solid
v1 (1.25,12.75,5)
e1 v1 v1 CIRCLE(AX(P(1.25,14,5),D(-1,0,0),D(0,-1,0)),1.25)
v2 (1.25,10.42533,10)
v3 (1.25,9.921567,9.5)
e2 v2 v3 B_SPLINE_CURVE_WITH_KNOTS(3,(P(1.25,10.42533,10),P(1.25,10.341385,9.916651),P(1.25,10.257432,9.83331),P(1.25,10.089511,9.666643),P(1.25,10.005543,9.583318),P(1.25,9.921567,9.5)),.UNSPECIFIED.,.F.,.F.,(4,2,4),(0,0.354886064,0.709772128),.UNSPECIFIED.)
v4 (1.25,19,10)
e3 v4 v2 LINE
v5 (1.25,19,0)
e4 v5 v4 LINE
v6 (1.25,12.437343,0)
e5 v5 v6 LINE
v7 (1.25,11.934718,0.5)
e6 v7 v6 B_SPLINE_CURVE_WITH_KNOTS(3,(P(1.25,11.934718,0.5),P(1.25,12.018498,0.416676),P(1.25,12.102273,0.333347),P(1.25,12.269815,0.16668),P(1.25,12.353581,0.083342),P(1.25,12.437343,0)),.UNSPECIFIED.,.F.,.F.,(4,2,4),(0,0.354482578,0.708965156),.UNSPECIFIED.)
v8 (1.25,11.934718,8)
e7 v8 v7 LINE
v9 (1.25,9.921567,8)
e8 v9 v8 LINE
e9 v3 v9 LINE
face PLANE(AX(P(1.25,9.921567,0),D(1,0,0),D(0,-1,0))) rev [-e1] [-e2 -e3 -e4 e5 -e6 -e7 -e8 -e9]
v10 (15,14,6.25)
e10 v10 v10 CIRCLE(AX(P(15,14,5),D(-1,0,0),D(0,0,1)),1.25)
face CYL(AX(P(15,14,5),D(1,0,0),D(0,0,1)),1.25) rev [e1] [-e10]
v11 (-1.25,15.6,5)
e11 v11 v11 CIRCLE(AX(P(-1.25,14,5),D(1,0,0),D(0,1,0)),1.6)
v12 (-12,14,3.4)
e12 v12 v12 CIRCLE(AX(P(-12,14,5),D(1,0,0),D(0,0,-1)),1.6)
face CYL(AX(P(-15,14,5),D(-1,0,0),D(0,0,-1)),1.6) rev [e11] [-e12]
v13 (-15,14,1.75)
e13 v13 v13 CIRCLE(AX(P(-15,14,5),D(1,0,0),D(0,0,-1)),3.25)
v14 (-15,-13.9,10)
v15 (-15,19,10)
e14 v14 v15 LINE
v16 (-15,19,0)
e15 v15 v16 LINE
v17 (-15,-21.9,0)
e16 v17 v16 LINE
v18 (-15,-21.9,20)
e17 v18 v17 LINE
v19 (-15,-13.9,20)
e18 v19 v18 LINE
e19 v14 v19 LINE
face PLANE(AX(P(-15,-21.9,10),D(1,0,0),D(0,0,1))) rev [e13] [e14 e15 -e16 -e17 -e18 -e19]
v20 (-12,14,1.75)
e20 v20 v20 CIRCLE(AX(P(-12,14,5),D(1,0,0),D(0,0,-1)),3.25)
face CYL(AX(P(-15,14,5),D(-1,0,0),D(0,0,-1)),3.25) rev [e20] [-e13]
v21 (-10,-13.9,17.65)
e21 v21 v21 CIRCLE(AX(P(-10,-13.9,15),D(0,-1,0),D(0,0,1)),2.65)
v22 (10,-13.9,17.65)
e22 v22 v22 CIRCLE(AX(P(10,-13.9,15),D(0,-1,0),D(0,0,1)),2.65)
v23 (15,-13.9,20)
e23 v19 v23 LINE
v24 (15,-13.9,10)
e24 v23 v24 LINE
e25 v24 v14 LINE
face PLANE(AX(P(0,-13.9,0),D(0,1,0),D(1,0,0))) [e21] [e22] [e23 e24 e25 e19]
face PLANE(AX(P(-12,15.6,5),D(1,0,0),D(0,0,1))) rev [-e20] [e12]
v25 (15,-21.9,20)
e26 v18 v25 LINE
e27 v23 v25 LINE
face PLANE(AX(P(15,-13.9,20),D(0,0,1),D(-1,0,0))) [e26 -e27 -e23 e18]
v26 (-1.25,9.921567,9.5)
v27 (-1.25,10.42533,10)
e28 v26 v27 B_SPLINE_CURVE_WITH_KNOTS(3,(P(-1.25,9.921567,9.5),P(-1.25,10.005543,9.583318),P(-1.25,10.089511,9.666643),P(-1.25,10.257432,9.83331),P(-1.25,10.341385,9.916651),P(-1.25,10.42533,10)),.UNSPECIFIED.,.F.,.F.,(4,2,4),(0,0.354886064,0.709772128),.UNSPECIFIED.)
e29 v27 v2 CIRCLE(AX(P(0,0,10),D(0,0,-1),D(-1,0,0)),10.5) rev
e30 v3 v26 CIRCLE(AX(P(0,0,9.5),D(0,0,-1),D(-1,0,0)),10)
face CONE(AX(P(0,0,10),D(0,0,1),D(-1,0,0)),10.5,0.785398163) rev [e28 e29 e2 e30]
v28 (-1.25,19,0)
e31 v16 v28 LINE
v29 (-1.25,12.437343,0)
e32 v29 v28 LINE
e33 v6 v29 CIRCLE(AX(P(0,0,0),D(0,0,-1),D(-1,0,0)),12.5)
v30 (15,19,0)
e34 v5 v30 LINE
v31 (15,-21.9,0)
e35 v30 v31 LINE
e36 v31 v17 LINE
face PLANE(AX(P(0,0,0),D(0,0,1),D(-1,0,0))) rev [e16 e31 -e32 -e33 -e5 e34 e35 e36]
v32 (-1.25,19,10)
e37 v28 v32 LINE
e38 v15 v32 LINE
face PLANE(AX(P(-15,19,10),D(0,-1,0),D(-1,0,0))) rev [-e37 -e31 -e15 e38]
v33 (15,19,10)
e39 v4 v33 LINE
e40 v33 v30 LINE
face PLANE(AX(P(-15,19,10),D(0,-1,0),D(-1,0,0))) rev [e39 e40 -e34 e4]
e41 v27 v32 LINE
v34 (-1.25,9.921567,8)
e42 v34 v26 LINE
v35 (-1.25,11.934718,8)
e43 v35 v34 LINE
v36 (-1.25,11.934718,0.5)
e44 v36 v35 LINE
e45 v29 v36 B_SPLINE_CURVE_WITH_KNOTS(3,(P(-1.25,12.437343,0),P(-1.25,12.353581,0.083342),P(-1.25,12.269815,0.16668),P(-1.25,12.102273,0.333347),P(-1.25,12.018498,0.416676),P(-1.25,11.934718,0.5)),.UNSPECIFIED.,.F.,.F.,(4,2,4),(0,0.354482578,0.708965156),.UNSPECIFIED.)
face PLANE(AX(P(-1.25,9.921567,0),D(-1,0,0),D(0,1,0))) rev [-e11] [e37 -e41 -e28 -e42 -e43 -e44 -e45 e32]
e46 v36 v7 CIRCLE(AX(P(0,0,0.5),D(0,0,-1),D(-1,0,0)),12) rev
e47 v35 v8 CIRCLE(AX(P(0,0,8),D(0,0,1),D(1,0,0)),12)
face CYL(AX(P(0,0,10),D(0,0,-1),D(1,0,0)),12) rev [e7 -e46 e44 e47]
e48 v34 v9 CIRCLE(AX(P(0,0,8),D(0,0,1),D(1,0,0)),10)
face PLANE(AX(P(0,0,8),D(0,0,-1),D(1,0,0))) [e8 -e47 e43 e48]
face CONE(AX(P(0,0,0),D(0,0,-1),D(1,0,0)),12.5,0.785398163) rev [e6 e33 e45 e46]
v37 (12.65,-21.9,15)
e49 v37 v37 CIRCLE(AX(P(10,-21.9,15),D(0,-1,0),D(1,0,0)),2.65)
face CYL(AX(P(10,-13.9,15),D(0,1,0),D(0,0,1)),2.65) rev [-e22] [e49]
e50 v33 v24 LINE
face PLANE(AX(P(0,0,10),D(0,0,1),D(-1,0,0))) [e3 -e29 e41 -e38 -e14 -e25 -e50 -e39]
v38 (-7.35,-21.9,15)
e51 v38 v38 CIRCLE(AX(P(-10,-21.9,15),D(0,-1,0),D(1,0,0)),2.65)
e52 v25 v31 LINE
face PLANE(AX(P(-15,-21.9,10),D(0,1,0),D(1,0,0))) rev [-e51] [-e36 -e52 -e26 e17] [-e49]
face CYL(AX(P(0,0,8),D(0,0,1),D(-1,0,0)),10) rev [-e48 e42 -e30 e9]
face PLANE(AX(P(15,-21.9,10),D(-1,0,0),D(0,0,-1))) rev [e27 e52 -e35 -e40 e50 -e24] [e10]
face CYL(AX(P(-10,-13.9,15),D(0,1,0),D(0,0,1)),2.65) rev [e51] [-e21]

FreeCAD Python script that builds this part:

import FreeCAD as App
import Part
import Sketcher


def edges_at(feature, points):
    """Names of the edges that pass closest to the given points."""
    edges = feature.Shape.Edges
    near = lambda p: min(range(len(edges)), key=lambda i: edges[i].distToShape(Part.Vertex(*p))[0])
    return sorted({f"Edge{near(p) + 1}" for p in points})


def add_polygon(sketch, points):
    """Adds a closed chain of lines whose ends are joined by coincident constraints."""
    first, n = sketch.GeometryCount, len(points)
    for a, b in zip(points, points[1:] + points[:1]):
        sketch.addGeometry(Part.LineSegment(App.Vector(*a, 0), App.Vector(*b, 0)), False)
    for i in range(n):
        sketch.addConstraint(Sketcher.Constraint("Coincident", first + i, 2, first + (i + 1) % n, 1))

doc = App.newDocument("Part")
body = doc.addObject("PartDesign::Body", "Body")

# Sketch on XY plane
sketch1 = doc.addObject("Sketcher::SketchObject", "Sketch")
body.addObject(sketch1)
sketch1.AttachmentSupport = (doc.XY_Plane, [""])
sketch1.MapMode = "FlatFace"
add_polygon(sketch1, [(-15, 19), (-15, -21.9), (15, -21.9), (15, 19)])  # lines 0-3
sketch1.addGeometry(Part.Circle(App.Vector(0, 0, 0), App.Vector(0, 0, 1), 12), False)  # 4
sketch1.addConstraint([
    Sketcher.Constraint("Vertical", 0),
    Sketcher.Constraint("Horizontal", 1),
    Sketcher.Constraint("Vertical", 2),
    Sketcher.Constraint("Horizontal", 3),
    Sketcher.Constraint("Coincident", 4, 3, -1, 1),
    Sketcher.Constraint("Diameter", 4, 24.0),
    Sketcher.Constraint("DistanceX", 1, 1, 1, 2, 30.0),
    Sketcher.Constraint("DistanceY", 0, 2, 0, 1, 40.9),
    Sketcher.Constraint("DistanceX", 0, 2, -1, 1, 15.0),
    Sketcher.Constraint("DistanceY", -1, 1, 2, 2, 19.0),
])
pad1 = doc.addObject("PartDesign::Pad", "Pad")
body.addObject(pad1)
pad1.Profile = sketch1
pad1.Length = 10

# Sketch on XY plane
sketch2 = doc.addObject("Sketcher::SketchObject", "Sketch001")
body.addObject(sketch2)
sketch2.AttachmentSupport = (doc.XY_Plane, [""])
sketch2.MapMode = "FlatFace"
sketch2.AttachmentOffset = App.Placement(App.Vector(0, 0, 8), App.Rotation())
sketch2.addGeometry([
    Part.Circle(App.Vector(0, 0, 0), App.Vector(0, 0, 1), 12),
    Part.Circle(App.Vector(0, 0, 0), App.Vector(0, 0, 1), 10),
], False)
sketch2.addConstraint([
    Sketcher.Constraint("Coincident", 0, 3, -1, 1),
    Sketcher.Constraint("Coincident", 1, 3, -1, 1),
    Sketcher.Constraint("Diameter", 0, 24.0),
    Sketcher.Constraint("Diameter", 1, 20.0),
])
pad2 = doc.addObject("PartDesign::Pad", "Pad001")
body.addObject(pad2)
pad2.Profile = sketch2
pad2.Length = 2

# Sketch on XY plane
sketch3 = doc.addObject("Sketcher::SketchObject", "Sketch002")
body.addObject(sketch3)
sketch3.AttachmentSupport = (doc.XY_Plane, [""])
sketch3.MapMode = "FlatFace"
sketch3.AttachmentOffset = App.Placement(App.Vector(0, 0, 10), App.Rotation())
add_polygon(sketch3, [(-1.25, 19), (-1.25, 9.921567), (1.25, 9.921567), (1.25, 19)])  # lines 0-3
sketch3.addConstraint([
    Sketcher.Constraint("Vertical", 0),
    Sketcher.Constraint("Horizontal", 1),
    Sketcher.Constraint("Vertical", 2),
    Sketcher.Constraint("Horizontal", 3),
    Sketcher.Constraint("DistanceX", 1, 1, 1, 2, 2.5),
    Sketcher.Constraint("DistanceY", -1, 1, 2, 2, 19.0),
    Sketcher.Constraint("DistanceX", 0, 2, -1, 1, 1.25),
    Sketcher.Constraint("DistanceY", 0, 2, 0, 1, 9.078433),
])
pocket1 = doc.addObject("PartDesign::Pocket", "Pocket")
body.addObject(pocket1)
pocket1.Profile = sketch3
pocket1.Type = "ThroughAll"

# Sketch on YZ plane
sketch4 = doc.addObject("Sketcher::SketchObject", "Sketch003")
body.addObject(sketch4)
sketch4.AttachmentSupport = (doc.YZ_Plane, [""])
sketch4.MapMode = "FlatFace"
sketch4.AttachmentOffset = App.Placement(App.Vector(0, 0, 15), App.Rotation())
sketch4.addGeometry(Part.Circle(App.Vector(14, 5, 0), App.Vector(0, 0, 1), 1.6), False)
sketch4.addConstraint([
    Sketcher.Constraint("Diameter", 0, 3.2),
    Sketcher.Constraint("DistanceX", -1, 1, 0, 3, 14.0),
    Sketcher.Constraint("DistanceY", -1, 1, 0, 3, 5.0),
])
doc.recompute()
hole = doc.addObject("PartDesign::Hole", "Hole")
body.addObject(hole)
hole.Profile = sketch4
hole.ThreadType = "None"
hole.Diameter = 3.2
hole.DepthType = "Dimension"
hole.Depth = 13.75
hole.DrillPoint = "Flat"
hole.HoleCutType = "Counterbore"
hole.HoleCutDiameter = 6.5
hole.HoleCutDepth = 3

# Sketch on YZ plane
sketch5 = doc.addObject("Sketcher::SketchObject", "Sketch004")
body.addObject(sketch5)
sketch5.AttachmentSupport = (doc.YZ_Plane, [""])
sketch5.MapMode = "FlatFace"
sketch5.AttachmentOffset = App.Placement(App.Vector(0, 0, -15), App.Rotation())
sketch5.addGeometry(Part.Circle(App.Vector(14, 5, 0), App.Vector(0, 0, 1), 1.25), False)
sketch5.addConstraint([
    Sketcher.Constraint("Diameter", 0, 2.5),
    Sketcher.Constraint("DistanceX", -1, 1, 0, 3, 14.0),
    Sketcher.Constraint("DistanceY", -1, 1, 0, 3, 5.0),
])
doc.recompute()
hole2 = doc.addObject("PartDesign::Hole", "Hole001")
body.addObject(hole2)
hole2.Profile = sketch5
hole2.ThreadType = "None"
hole2.Diameter = 2.5
hole2.DepthType = "ThroughAll"
hole2.Reversed = True
doc.recompute()

chamfer = doc.addObject("PartDesign::Chamfer", "Chamfer")
body.addObject(chamfer)
chamfer.Base = (hole2, edges_at(hole2, [(0, -10, 10), (0, -12, 0)]))
chamfer.Size = 0.5

# Sketch on XZ plane
sketch6 = doc.addObject("Sketcher::SketchObject", "Sketch005")
body.addObject(sketch6)
sketch6.AttachmentSupport = (doc.XZ_Plane, [""])
sketch6.MapMode = "FlatFace"
sketch6.AttachmentOffset = App.Placement(App.Vector(0, 0, 21.9), App.Rotation())
add_polygon(sketch6, [(-15, 20), (-15, 10), (15, 10), (15, 20)])  # lines 0-3
sketch6.addConstraint([
    Sketcher.Constraint("Vertical", 0),
    Sketcher.Constraint("Horizontal", 1),
    Sketcher.Constraint("Vertical", 2),
    Sketcher.Constraint("Horizontal", 3),
    Sketcher.Constraint("DistanceX", 1, 1, 1, 2, 30.0),
    Sketcher.Constraint("DistanceY", 0, 2, 0, 1, 10.0),
    Sketcher.Constraint("DistanceX", 0, 2, -1, 1, 15.0),
    Sketcher.Constraint("DistanceY", -1, 1, 0, 2, 10.0),
])
pad3 = doc.addObject("PartDesign::Pad", "Pad002")
body.addObject(pad3)
pad3.Profile = sketch6
pad3.Length = 8
pad3.Reversed = True

# Sketch on XZ plane
sketch7 = doc.addObject("Sketcher::SketchObject", "Sketch006")
body.addObject(sketch7)
sketch7.AttachmentSupport = (doc.XZ_Plane, [""])
sketch7.MapMode = "FlatFace"
sketch7.AttachmentOffset = App.Placement(App.Vector(0, 0, 13.9), App.Rotation())
sketch7.addGeometry([
    Part.Circle(App.Vector(-10, 15, 0), App.Vector(0, 0, 1), 2.65),
    Part.Circle(App.Vector(10, 15, 0), App.Vector(0, 0, 1), 2.65),
], False)
sketch7.addConstraint([
    Sketcher.Constraint("Equal", 0, 1),
    Sketcher.Constraint("Symmetric", 0, 3, 1, 3, -2),
    Sketcher.Constraint("Diameter", 0, 5.3),
    Sketcher.Constraint("DistanceX", 0, 3, -1, 1, 10.0),
    Sketcher.Constraint("DistanceY", -1, 1, 0, 3, 15.0),
])
doc.recompute()
hole3 = doc.addObject("PartDesign::Hole", "Hole002")
body.addObject(hole3)
hole3.Profile = sketch7
hole3.ThreadType = "None"
hole3.Diameter = 5.3
hole3.DepthType = "ThroughAll"
hole3.Reversed = True
body2 = doc.addObject("PartDesign::Body", "Body001")
doc.recompute()

mirroring = doc.addObject("Part::Mirroring", "Mirroring")
mirroring.Source = body
mirroring.Base = App.Vector(0, 0, 0)
mirroring.Normal = App.Vector(1, 0, 0)
body2.BaseFeature = mirroring
doc.recompute()
body.Visibility = False
mirroring.Visibility = False

doc.recompute()
